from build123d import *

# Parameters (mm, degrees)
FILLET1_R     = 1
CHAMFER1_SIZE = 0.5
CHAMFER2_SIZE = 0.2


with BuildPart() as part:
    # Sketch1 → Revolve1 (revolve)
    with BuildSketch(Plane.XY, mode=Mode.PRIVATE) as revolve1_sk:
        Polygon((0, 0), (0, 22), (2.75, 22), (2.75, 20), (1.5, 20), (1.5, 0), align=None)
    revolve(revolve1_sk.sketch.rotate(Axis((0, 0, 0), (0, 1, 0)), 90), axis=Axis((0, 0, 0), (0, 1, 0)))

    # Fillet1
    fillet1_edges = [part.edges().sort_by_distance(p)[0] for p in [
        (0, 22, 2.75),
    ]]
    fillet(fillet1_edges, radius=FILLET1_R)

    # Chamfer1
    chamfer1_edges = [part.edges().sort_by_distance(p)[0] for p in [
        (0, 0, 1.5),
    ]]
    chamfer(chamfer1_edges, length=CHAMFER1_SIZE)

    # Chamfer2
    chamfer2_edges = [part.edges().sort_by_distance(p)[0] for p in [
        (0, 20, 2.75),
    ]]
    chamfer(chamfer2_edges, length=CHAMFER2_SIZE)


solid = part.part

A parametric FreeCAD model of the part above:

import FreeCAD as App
import Part
import Sketcher
Q = App.Units.Quantity


def edges_at(feature, points):
    """Names of the edges that pass closest to the given points."""
    edges = feature.Shape.Edges
    near = lambda p: min(range(len(edges)), key=lambda i: edges[i].distToShape(Part.Vertex(*p))[0])
    return sorted({f"Edge{near(p) + 1}" for p in points})


def add_polygon(sketch, points):
    """Adds a closed chain of lines whose ends are joined by coincident constraints."""
    first, n = sketch.GeometryCount, len(points)
    for a, b in zip(points, points[1:] + points[:1]):
        sketch.addGeometry(Part.LineSegment(App.Vector(*a, 0), App.Vector(*b, 0)), False)
    for i in range(n):
        sketch.addConstraint(Sketcher.Constraint("Coincident", first + i, 2, first + (i + 1) % n, 1))

doc = App.newDocument("Part")
body = doc.addObject("PartDesign::Body", "Body")

# Sketch on XY plane
sketch1 = doc.addObject("Sketcher::SketchObject", "Sketch")
body.addObject(sketch1)
sketch1.AttachmentSupport = (doc.XY_Plane, [""])
sketch1.MapMode = "FlatFace"
add_polygon(sketch1, [(0, 22), (0, 0), (1.5, 0), (1.5, 20), (2.8, 20), (2.8, 22)])  # lines 0-5
sketch1.addConstraint([
    Sketcher.Constraint("Vertical", 0),
    Sketcher.Constraint("Horizontal", 1),
    Sketcher.Constraint("Vertical", 2),
    Sketcher.Constraint("Horizontal", 3),
    Sketcher.Constraint("Vertical", 4),
    Sketcher.Constraint("Horizontal", 5),
    Sketcher.Constraint("Coincident", 0, 2, -1, 1),
    Sketcher.Constraint("DistanceY", 0, 2, 0, 1, Q("22 mm")),
    Sketcher.Constraint("DistanceY", 2, 1, 2, 2, Q("20 mm")),
    Sketcher.Constraint("DistanceX", 1, 1, 1, 2, Q("1.5 mm")),
    Sketcher.Constraint("DistanceX", 3, 1, 3, 2, Q("1.25 mm")),
])
revolution = doc.addObject("PartDesign::Revolution", "Revolution")
body.addObject(revolution)
revolution.Profile = sketch1
revolution.ReferenceAxis = (sketch1, ["V_Axis"])
revolution.Angle = 360
doc.recompute()

fillet = doc.addObject("PartDesign::Fillet", "Fillet")
body.addObject(fillet)
fillet.Base = (revolution, edges_at(revolution, [(0, 22, 2.75)]))
fillet.Radius = 1
doc.recompute()

chamfer = doc.addObject("PartDesign::Chamfer", "Chamfer")
body.addObject(chamfer)
chamfer.Base = (fillet, edges_at(fillet, [(0, 0, 1.5)]))
chamfer.Size = 0.5
doc.recompute()

chamfer2 = doc.addObject("PartDesign::Chamfer", "Chamfer001")
body.addObject(chamfer2)
chamfer2.Base = (chamfer, edges_at(chamfer, [(0, 20, 2.75)]))
chamfer2.Size = 0.2

doc.recompute()
